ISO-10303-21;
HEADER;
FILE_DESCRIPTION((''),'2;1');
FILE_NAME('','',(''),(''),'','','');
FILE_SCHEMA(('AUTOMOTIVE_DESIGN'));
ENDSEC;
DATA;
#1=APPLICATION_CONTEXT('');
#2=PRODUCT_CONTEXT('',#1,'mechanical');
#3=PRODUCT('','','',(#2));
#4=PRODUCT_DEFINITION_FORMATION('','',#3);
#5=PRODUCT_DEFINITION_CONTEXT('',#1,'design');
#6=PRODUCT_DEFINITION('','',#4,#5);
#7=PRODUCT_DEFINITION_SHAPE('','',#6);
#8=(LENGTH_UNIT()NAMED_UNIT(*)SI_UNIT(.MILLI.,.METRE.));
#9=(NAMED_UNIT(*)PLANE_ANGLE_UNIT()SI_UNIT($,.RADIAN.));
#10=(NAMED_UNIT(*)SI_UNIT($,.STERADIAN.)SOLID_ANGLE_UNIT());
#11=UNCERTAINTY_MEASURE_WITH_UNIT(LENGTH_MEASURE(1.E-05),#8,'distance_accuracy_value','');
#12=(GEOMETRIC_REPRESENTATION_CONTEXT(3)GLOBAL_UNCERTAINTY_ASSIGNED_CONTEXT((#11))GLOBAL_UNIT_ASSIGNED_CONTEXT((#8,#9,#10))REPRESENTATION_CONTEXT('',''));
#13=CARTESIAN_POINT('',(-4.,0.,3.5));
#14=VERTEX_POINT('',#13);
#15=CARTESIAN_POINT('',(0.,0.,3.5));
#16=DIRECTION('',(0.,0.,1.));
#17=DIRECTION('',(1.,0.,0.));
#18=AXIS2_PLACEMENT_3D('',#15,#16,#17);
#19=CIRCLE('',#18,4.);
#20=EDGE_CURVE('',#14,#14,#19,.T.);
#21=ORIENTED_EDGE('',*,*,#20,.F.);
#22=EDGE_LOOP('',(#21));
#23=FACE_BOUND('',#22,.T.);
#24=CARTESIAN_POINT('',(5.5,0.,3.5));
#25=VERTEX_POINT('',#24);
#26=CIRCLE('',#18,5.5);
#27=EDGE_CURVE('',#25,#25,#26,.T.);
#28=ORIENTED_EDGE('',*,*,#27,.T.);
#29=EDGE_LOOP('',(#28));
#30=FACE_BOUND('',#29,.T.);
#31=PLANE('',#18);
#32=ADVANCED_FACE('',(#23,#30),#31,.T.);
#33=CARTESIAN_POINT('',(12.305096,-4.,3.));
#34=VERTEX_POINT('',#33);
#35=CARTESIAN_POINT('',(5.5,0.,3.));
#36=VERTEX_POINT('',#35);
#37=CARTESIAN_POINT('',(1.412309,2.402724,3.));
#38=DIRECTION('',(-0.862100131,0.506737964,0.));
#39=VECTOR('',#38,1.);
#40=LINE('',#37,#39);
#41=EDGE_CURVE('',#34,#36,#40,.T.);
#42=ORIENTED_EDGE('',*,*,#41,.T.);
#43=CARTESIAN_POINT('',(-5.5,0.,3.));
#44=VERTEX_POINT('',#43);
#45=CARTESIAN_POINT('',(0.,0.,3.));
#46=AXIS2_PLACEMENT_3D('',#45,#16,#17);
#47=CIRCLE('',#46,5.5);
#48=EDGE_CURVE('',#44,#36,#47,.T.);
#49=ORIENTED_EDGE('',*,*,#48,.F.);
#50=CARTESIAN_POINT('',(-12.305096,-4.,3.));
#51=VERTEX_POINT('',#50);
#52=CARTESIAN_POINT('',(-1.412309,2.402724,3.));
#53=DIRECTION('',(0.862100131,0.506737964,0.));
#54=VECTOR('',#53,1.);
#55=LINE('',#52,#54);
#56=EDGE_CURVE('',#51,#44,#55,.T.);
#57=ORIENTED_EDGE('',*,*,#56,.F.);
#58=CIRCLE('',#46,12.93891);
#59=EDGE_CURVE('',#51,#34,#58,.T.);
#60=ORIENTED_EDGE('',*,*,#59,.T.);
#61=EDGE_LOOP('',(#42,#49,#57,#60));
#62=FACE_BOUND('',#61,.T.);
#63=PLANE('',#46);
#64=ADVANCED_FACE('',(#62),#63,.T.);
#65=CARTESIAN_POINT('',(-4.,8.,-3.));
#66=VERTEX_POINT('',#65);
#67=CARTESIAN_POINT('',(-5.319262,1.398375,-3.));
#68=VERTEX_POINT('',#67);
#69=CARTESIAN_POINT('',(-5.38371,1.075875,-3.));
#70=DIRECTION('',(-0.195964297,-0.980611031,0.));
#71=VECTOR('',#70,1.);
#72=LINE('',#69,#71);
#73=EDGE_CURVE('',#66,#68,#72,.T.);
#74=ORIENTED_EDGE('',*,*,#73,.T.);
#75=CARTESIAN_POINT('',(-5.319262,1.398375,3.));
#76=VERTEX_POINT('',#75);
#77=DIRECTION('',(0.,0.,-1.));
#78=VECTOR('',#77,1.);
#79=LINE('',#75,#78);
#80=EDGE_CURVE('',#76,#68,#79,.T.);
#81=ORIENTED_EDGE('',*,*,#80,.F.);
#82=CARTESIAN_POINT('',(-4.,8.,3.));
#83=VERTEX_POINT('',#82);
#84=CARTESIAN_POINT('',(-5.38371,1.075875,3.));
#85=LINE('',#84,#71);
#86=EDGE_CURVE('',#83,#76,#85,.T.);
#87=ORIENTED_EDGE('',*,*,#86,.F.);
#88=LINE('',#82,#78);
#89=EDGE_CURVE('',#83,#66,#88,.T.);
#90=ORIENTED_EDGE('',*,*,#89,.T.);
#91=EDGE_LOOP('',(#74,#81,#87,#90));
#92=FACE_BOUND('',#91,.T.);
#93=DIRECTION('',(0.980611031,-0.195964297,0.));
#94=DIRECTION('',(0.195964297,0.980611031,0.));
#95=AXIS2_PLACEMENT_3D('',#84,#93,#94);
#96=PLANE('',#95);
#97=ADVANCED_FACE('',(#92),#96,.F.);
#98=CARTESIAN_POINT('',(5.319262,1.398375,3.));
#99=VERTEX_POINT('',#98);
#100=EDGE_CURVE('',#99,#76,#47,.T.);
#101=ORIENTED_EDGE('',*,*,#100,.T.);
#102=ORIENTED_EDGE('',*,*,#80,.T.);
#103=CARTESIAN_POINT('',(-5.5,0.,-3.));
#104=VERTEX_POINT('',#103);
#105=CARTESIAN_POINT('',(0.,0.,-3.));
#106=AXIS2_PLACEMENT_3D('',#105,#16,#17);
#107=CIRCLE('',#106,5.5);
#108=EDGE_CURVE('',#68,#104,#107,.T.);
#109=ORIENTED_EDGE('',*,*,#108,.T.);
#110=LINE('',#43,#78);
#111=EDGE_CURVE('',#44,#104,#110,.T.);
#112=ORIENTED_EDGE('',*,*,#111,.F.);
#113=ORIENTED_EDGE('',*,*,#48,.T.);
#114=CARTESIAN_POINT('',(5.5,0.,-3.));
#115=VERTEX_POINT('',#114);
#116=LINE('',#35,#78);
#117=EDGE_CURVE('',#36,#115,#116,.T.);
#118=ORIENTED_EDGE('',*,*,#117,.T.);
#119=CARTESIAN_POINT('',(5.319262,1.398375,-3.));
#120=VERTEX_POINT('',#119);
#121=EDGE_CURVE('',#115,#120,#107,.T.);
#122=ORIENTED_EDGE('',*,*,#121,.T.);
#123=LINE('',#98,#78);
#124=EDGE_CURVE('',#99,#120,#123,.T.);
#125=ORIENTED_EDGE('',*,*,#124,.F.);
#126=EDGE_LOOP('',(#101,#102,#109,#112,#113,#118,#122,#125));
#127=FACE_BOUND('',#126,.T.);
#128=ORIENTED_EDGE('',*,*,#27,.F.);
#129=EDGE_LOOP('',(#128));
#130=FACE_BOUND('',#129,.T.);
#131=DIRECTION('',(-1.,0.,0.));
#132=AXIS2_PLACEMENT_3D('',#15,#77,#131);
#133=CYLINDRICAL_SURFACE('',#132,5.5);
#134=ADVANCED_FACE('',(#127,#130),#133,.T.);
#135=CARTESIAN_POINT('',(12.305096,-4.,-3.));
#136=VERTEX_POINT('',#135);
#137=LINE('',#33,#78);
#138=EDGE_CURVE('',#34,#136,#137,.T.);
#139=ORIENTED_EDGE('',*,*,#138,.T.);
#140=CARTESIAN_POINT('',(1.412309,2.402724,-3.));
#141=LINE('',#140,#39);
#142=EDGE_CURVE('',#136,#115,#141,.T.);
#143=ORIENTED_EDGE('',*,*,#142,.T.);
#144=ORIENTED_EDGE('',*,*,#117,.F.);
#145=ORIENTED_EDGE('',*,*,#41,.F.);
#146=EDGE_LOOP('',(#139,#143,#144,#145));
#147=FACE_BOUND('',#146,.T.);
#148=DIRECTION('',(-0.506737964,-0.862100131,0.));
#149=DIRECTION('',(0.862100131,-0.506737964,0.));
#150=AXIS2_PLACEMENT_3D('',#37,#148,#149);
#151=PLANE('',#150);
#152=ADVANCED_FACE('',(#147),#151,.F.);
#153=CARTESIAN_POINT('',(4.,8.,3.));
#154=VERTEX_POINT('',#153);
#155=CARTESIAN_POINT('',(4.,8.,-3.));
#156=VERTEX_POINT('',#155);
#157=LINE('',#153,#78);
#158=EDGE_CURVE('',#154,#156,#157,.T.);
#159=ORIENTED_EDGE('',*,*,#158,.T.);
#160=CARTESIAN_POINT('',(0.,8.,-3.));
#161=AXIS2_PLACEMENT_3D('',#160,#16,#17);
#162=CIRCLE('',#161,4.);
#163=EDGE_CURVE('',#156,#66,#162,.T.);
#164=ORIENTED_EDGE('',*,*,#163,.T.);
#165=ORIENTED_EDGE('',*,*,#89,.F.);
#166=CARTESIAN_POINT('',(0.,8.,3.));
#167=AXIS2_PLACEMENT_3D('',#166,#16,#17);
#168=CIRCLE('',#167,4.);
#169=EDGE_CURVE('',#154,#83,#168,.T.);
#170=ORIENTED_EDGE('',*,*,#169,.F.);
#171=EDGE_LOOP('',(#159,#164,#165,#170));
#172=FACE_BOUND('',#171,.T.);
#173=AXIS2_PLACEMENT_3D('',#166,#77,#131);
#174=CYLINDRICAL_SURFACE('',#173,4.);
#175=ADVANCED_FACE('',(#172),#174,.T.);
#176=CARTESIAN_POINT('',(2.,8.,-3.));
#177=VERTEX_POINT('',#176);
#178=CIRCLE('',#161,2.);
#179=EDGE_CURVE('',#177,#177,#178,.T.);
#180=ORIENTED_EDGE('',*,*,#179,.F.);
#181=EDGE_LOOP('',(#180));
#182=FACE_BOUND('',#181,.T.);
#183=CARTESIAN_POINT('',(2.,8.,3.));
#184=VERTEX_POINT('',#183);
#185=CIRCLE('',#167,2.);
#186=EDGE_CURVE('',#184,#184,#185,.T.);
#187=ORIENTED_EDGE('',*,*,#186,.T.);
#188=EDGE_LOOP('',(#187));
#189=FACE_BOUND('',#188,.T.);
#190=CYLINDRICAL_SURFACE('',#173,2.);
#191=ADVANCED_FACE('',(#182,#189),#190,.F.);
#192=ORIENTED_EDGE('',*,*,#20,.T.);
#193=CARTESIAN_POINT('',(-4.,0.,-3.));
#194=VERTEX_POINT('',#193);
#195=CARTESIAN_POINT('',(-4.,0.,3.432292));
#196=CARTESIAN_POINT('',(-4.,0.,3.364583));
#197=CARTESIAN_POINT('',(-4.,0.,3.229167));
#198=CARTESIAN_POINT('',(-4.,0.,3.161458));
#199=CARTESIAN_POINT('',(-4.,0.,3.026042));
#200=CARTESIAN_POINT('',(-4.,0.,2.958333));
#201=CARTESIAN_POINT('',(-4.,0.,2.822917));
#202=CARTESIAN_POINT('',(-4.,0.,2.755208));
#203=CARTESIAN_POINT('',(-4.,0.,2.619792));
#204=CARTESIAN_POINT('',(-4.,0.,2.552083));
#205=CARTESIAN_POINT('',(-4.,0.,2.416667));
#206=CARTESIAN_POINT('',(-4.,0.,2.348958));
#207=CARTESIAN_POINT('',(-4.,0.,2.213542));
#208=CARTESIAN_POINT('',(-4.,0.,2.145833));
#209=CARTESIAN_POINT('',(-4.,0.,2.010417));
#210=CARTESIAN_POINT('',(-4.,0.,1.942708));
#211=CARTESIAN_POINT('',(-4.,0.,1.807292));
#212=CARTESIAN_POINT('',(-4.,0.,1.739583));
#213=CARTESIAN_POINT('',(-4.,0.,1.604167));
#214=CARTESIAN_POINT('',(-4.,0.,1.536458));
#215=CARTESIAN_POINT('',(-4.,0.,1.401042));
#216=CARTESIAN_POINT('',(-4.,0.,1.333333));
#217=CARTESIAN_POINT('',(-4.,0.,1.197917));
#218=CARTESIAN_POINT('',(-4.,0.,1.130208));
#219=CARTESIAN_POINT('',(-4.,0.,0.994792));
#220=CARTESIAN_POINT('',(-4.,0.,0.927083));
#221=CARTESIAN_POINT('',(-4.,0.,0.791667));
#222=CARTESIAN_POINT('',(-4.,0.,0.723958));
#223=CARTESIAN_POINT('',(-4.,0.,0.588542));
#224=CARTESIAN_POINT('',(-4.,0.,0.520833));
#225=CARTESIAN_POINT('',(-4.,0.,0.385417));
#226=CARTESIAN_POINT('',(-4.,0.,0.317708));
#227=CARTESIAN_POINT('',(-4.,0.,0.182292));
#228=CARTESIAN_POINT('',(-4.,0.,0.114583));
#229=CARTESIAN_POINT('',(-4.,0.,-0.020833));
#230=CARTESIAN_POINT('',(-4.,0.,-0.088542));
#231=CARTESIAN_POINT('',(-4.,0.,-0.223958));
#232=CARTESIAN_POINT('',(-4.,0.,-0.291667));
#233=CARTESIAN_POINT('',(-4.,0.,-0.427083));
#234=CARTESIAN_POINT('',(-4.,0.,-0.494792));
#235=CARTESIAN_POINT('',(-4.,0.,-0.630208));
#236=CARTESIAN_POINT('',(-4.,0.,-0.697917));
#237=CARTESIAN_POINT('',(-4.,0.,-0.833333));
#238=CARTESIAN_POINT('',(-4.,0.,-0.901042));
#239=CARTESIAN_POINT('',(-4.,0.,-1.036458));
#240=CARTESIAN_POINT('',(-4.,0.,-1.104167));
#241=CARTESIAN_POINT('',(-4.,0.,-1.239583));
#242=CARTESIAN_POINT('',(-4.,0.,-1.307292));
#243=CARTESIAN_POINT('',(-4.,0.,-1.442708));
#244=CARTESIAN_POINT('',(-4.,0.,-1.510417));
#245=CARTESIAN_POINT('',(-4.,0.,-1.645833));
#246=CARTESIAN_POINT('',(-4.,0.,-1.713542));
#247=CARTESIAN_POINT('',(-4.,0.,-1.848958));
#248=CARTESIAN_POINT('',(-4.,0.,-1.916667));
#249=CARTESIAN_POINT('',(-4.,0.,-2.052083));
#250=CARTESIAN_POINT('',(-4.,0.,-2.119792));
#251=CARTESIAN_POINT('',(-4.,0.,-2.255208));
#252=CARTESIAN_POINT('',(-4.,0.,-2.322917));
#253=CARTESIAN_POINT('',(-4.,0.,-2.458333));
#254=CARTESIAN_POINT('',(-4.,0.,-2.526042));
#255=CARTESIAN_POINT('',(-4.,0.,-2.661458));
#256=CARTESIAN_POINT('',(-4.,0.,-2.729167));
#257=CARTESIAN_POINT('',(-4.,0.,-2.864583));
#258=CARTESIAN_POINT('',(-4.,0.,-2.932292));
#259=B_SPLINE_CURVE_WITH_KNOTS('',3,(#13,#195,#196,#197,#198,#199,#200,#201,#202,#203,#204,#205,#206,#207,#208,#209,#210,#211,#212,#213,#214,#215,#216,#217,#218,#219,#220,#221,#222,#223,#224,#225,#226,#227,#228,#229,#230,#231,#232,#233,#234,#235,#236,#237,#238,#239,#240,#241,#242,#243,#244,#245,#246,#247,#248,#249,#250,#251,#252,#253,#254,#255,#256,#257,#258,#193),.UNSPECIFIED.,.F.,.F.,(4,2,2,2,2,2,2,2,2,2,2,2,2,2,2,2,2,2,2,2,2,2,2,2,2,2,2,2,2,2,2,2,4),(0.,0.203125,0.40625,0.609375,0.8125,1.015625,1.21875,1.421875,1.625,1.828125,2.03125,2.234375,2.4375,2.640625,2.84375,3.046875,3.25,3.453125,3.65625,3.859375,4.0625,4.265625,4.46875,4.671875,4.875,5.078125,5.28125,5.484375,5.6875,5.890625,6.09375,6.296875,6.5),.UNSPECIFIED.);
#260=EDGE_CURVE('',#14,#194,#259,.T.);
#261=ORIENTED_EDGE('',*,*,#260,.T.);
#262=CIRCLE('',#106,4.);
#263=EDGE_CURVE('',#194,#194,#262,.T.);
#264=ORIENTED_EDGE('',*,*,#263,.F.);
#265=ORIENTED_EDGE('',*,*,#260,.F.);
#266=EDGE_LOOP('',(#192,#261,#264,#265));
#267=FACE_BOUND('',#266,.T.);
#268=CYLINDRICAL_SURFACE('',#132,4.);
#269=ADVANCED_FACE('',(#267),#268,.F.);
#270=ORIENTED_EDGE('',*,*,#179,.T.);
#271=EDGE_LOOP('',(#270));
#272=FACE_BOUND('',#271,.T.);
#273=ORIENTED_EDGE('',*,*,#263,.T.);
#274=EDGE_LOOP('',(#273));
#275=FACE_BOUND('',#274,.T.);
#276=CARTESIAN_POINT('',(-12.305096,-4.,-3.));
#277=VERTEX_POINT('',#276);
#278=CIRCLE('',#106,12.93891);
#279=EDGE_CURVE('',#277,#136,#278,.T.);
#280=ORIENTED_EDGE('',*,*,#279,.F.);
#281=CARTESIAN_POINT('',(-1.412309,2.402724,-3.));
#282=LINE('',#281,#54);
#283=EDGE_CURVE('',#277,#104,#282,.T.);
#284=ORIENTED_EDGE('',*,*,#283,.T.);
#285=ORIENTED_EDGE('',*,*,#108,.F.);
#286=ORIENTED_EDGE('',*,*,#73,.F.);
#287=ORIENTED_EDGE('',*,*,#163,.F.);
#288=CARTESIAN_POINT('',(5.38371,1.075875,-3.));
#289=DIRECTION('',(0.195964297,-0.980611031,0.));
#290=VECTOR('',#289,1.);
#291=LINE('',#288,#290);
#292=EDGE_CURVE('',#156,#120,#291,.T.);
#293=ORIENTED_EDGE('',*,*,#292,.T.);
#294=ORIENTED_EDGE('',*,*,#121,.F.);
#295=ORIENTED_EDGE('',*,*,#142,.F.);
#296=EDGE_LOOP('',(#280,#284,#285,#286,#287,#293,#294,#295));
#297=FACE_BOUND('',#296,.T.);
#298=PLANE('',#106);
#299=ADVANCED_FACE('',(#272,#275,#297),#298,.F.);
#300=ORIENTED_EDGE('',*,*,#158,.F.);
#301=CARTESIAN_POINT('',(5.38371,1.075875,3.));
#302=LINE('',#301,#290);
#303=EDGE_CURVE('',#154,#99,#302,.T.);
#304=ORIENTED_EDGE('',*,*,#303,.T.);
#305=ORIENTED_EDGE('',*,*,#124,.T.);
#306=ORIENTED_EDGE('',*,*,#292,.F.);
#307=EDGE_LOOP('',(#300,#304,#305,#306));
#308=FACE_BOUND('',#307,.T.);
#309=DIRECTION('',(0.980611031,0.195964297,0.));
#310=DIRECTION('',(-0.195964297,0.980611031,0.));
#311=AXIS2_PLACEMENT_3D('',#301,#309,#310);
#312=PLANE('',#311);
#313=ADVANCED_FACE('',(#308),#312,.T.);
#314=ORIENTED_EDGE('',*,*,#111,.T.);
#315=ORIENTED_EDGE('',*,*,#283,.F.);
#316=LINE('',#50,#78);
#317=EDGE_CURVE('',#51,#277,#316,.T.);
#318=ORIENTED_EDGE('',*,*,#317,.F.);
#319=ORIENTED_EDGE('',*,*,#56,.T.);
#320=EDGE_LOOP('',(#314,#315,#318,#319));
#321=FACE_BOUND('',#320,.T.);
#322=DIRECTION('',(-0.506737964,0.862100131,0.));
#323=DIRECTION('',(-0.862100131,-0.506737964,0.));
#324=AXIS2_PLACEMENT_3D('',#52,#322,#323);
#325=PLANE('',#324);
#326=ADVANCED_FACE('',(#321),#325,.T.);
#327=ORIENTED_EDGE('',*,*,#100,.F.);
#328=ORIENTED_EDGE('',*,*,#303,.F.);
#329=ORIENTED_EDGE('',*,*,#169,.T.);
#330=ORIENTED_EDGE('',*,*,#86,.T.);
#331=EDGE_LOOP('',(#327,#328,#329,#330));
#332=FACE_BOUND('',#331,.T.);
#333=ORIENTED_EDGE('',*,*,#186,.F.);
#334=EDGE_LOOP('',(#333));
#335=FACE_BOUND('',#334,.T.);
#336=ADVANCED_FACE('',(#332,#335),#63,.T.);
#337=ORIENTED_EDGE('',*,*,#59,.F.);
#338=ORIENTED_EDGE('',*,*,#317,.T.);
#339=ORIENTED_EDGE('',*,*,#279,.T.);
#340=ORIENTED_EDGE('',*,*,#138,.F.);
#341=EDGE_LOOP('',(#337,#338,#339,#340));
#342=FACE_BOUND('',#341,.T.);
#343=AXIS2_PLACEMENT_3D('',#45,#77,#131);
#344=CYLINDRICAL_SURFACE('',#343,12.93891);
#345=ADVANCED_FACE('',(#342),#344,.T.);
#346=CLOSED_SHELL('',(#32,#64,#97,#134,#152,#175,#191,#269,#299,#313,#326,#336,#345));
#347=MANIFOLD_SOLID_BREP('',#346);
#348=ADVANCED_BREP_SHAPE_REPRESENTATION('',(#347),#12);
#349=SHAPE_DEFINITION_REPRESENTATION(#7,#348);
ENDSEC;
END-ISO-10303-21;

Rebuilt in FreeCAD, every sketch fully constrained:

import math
import FreeCAD as App
import Part
import Sketcher
from FreeCAD import Vector
Q = App.Units.Quantity

doc = App.newDocument("Part")
body = doc.addObject("PartDesign::Body", "Body")

sketch1 = body.newObject("Sketcher::SketchObject", "Sketch")
sketch1.AttachmentSupport = (doc.getObject("XY_Plane"), [""])
sketch1.MapMode = "FlatFace"
sketch1.addGeometry([
    Part.LineSegment(Vector(-5.5, 0, 0), Vector(-12.305096, -4, 0)),
    Part.ArcOfCircle(Part.Circle(Vector(0, 0, 0), Vector(0, 0, 1), 12.93891), math.radians(-161.992285), math.radians(-18.007715)),
    Part.LineSegment(Vector(12.305096, -4, 0), Vector(5.5, 0, 0)),
    Part.ArcOfCircle(Part.Circle(Vector(0, 0, 0), Vector(0, 0, 1), 5.5), math.radians(180), math.radians(360)),
], False)
sketch1.addConstraint([
    Sketcher.Constraint("Coincident", 0, 2, 1, 1),
    Sketcher.Constraint("Coincident", 1, 2, 2, 1),
    Sketcher.Constraint("Coincident", 2, 2, 3, 2),
    Sketcher.Constraint("Coincident", 3, 1, 0, 1),
    Sketcher.Constraint("Coincident", 1, 3, -1, 1),
    Sketcher.Constraint("Coincident", 3, 3, -1, 1),
    Sketcher.Constraint("PointOnObject", 2, 2, -1),
    Sketcher.Constraint("PointOnObject", 3, 1, -1),
    Sketcher.Constraint("Horizontal", 0, 2, 1, 2),
    Sketcher.Constraint("Radius", 3, Q("5.5 mm")),
    Sketcher.Constraint("DistanceY", 0, 2, -1, 1, Q("4 mm")),
    Sketcher.Constraint("Radius", 1, Q("12.93891 mm")),
])
pad1 = body.newObject("PartDesign::Pad", "Pad")
pad1.Profile = sketch1
pad1.Length = 6
pad1.Midplane = True
body2 = doc.addObject("PartDesign::Body", "Body001")

sketch2 = body2.newObject("Sketcher::SketchObject", "Sketch001")
sketch2.AttachmentSupport = (doc.getObject("XY_Plane001"), [""])
sketch2.MapMode = "FlatFace"
sketch2.addGeometry([
    Part.LineSegment(Vector(-4, 8, 0), Vector(-5.319262, 1.398375, 0)),
    Part.ArcOfCircle(Part.Circle(Vector(0, 0, 0), Vector(0, 0, 1), 5.5), math.radians(14.729147), math.radians(165.270853)),
    Part.LineSegment(Vector(5.319262, 1.398375, 0), Vector(4, 8, 0)),
    Part.ArcOfCircle(Part.Circle(Vector(0, 8, 0), Vector(0, 0, 1), 4), math.radians(0), math.radians(180)),
    Part.Circle(Vector(0, 8, 0), Vector(0, 0, 1), 2),
], False)
sketch2.addConstraint([
    Sketcher.Constraint("Coincident", 0, 2, 1, 2),
    Sketcher.Constraint("Coincident", 1, 1, 2, 1),
    Sketcher.Constraint("Coincident", 2, 2, 3, 1),
    Sketcher.Constraint("Coincident", 3, 2, 0, 1),
    Sketcher.Constraint("Coincident", 1, 3, -1, 1),
    Sketcher.Constraint("Coincident", 4, 3, 3, 3),
    Sketcher.Constraint("Symmetric", 2, 2, 3, 2, -2),
    Sketcher.Constraint("Horizontal", 0, 2, 1, 1),
    Sketcher.Constraint("Horizontal", 4, 3, 2, 2),
    Sketcher.Constraint("Diameter", 4, Q("4 mm")),
    Sketcher.Constraint("Radius", 3, Q("4 mm")),
    Sketcher.Constraint("Radius", 1, Q("5.5 mm")),
    Sketcher.Constraint("DistanceY", -1, 1, 3, 3, Q("8 mm")),
    Sketcher.Constraint("DistanceX", 0, 2, -1, 1, Q("5.319262 mm")),
])
pad2 = body2.newObject("PartDesign::Pad", "Pad001")
pad2.Profile = sketch2
pad2.Length = 6
pad2.Midplane = True
body.AllowCompound = True
doc.recompute()

boolean = body.newObject("PartDesign::Boolean", "Boolean")
boolean.Type = "Fuse"
boolean.addObjects([body2])

sketch3 = body.newObject("Sketcher::SketchObject", "Sketch002")
sketch3.AttachmentSupport = (doc.getObject("XY_Plane"), [""])
sketch3.MapMode = "FlatFace"
sketch3.AttachmentOffset = App.Placement(Vector(0, 0, 3.5), App.Rotation())
sketch3.addGeometry([
    Part.Circle(Vector(0, 0, 0), Vector(0, 0, 1), 5.5),
    Part.Circle(Vector(0, 0, 0), Vector(0, 0, 1), 4),
], False)
sketch3.addConstraint([
    Sketcher.Constraint("Coincident", 0, 3, -1, 1),
    Sketcher.Constraint("Coincident", 1, 3, -1, 1),
    Sketcher.Constraint("Diameter", 0, Q("11 mm")),
    Sketcher.Constraint("Diameter", 1, Q("8 mm")),
])
pad3 = body.newObject("PartDesign::Pad", "Pad002")
pad3.Profile = sketch3
pad3.Length = 6.5
pad3.Reversed = True

doc.recompute()
